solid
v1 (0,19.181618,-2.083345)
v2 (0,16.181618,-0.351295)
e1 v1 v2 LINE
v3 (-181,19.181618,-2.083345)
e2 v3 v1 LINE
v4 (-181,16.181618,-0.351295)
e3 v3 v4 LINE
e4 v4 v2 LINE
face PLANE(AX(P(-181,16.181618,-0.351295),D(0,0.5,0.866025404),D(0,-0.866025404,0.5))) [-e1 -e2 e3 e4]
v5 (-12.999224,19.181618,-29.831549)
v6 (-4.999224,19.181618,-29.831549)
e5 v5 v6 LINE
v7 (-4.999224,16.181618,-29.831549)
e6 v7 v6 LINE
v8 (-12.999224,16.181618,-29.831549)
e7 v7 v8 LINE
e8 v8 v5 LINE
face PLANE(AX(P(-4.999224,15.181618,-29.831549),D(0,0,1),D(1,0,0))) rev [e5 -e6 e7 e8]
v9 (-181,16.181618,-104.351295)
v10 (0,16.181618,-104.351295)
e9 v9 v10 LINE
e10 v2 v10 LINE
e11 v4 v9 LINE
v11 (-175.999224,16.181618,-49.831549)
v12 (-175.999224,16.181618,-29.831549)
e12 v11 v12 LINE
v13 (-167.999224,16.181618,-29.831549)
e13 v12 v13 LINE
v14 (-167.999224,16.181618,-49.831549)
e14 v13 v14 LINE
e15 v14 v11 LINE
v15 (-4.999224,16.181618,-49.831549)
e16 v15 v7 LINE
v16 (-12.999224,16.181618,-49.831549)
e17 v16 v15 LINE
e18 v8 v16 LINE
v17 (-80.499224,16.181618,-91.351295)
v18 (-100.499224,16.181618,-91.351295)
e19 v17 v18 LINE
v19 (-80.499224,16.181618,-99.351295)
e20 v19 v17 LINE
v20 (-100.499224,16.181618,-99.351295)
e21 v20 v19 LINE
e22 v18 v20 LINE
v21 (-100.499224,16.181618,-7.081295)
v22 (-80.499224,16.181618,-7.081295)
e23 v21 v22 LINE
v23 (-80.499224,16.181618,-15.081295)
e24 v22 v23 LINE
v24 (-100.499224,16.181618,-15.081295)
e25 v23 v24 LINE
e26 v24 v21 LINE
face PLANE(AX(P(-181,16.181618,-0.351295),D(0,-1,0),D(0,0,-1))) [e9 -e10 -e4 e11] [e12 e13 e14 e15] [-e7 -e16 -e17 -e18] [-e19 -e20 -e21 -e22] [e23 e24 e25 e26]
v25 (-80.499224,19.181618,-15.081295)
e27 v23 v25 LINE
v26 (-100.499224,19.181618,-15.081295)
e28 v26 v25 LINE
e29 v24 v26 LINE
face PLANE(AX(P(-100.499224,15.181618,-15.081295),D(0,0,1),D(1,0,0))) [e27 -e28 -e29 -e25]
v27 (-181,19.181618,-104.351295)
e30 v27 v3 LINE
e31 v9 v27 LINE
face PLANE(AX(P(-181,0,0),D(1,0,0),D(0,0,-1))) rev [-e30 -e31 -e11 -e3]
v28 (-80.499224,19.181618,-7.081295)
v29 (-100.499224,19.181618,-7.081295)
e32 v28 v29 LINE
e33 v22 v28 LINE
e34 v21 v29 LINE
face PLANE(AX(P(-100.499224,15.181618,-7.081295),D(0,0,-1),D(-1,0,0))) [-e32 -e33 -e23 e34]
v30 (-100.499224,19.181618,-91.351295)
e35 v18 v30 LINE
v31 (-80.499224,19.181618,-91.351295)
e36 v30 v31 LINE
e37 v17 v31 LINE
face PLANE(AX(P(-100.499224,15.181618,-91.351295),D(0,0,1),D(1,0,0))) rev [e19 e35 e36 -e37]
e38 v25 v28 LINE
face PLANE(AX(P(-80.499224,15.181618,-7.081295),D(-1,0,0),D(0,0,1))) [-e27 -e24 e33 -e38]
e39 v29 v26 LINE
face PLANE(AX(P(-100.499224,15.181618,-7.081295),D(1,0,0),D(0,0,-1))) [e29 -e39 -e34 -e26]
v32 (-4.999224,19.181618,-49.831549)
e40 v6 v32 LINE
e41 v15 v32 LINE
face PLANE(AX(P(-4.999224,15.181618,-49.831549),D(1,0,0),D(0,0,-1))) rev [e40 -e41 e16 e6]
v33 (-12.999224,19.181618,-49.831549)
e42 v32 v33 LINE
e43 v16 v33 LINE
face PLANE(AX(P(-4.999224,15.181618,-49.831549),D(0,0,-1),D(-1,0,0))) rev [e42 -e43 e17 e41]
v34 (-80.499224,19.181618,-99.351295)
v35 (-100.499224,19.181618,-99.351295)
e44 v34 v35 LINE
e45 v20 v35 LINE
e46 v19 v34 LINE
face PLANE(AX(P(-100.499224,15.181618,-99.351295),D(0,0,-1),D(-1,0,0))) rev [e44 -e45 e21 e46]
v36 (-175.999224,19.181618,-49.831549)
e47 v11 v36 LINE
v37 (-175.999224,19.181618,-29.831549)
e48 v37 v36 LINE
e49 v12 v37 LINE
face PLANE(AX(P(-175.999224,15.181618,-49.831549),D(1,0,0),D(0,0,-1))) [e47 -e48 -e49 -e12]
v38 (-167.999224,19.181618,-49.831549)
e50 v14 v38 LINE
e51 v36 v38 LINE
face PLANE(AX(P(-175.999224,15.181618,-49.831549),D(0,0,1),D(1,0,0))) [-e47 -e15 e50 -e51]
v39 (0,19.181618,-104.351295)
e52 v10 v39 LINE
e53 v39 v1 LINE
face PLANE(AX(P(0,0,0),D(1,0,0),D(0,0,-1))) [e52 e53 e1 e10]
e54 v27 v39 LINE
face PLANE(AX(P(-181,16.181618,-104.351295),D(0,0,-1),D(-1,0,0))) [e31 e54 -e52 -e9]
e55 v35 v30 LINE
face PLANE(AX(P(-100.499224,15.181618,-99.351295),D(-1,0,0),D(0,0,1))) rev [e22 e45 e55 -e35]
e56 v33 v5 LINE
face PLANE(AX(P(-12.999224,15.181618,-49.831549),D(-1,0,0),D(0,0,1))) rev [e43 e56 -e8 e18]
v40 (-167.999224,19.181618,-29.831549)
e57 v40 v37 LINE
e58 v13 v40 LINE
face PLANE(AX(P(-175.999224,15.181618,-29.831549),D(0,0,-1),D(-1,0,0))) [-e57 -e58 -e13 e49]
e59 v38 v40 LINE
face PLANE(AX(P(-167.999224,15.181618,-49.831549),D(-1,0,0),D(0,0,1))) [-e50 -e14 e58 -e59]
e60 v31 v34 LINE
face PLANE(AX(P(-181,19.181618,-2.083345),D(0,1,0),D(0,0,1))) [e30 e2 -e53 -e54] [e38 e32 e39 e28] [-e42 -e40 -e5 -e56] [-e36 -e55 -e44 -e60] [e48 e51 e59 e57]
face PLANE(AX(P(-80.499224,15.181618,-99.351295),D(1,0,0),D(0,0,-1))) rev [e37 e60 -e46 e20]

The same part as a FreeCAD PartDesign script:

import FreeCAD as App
import Part
import Sketcher

V = App.Vector
Q = App.Units.Quantity

doc = App.newDocument("Part")
body = doc.addObject("PartDesign::Body", "Body")

sketch1 = body.newObject("Sketcher::SketchObject", "Sketch")
sketch1.AttachmentSupport = (doc.getObject("YZ_Plane"), [""])
sketch1.MapMode = "FlatFace"
sketch1.addGeometry([
    Part.LineSegment(V(19.2, -2.1, 0), V(16.2, -0.4, 0)),
    Part.LineSegment(V(16.2, -0.4, 0), V(16.2, -104.4, 0)),
    Part.LineSegment(V(16.2, -104.4, 0), V(19.2, -104.4, 0)),
    Part.LineSegment(V(19.2, -104.4, 0), V(19.2, -2.1, 0)),
], False)
sketch1.addConstraint([
    Sketcher.Constraint("Coincident", 0, 2, 1, 1),
    Sketcher.Constraint("Coincident", 1, 2, 2, 1),
    Sketcher.Constraint("Coincident", 2, 2, 3, 1),
    Sketcher.Constraint("Coincident", 3, 2, 0, 1),
    Sketcher.Constraint("Vertical", 1),
    Sketcher.Constraint("Horizontal", 2),
    Sketcher.Constraint("Vertical", 3),
    Sketcher.Constraint("DistanceX", 2, 1, 2, 2, 3.0),
    Sketcher.Constraint("DistanceY", 1, 2, 1, 1, 104.0),
    Sketcher.Constraint("Angle", 0, Q("150 deg")),
    Sketcher.Constraint("DistanceX", -1, 1, 0, 2, 16.181618),
    Sketcher.Constraint("DistanceY", 0, 2, -1, 1, 0.351295),
])
pad1 = body.newObject("PartDesign::Pad", "Pad")
pad1.Profile = sketch1
pad1.Length = 181
pad1.Reversed = True

sketch2 = body.newObject("Sketcher::SketchObject", "Sketch001")
sketch2.AttachmentSupport = (doc.getObject("XZ_Plane"), [""])
sketch2.MapMode = "FlatFace"
sketch2.AttachmentOffset = App.Placement(V(0, 0, -19.181618), App.Rotation())
sketch2.addGeometry([
    Part.LineSegment(V(-100, -99, 0), V(-100, -91, 0)),
    Part.LineSegment(V(-100, -91, 0), V(-80, -91, 0)),
    Part.LineSegment(V(-80, -91, 0), V(-80, -99, 0)),
    Part.LineSegment(V(-80, -99, 0), V(-100, -99, 0)),
    Part.LineSegment(V(-13, -50, 0), V(-13, -30, 0)),
    Part.LineSegment(V(-13, -30, 0), V(-5, -30, 0)),
    Part.LineSegment(V(-5, -30, 0), V(-5, -50, 0)),
    Part.LineSegment(V(-5, -50, 0), V(-13, -50, 0)),
], False)
sketch2.addConstraint([
    Sketcher.Constraint("Coincident", 0, 2, 1, 1),
    Sketcher.Constraint("Coincident", 1, 2, 2, 1),
    Sketcher.Constraint("Coincident", 2, 2, 3, 1),
    Sketcher.Constraint("Coincident", 3, 2, 0, 1),
    Sketcher.Constraint("Coincident", 4, 2, 5, 1),
    Sketcher.Constraint("Coincident", 5, 2, 6, 1),
    Sketcher.Constraint("Coincident", 6, 2, 7, 1),
    Sketcher.Constraint("Coincident", 7, 2, 4, 1),
    Sketcher.Constraint("Vertical", 0),
    Sketcher.Constraint("Horizontal", 1),
    Sketcher.Constraint("Vertical", 2),
    Sketcher.Constraint("Horizontal", 3),
    Sketcher.Constraint("Vertical", 4),
    Sketcher.Constraint("Horizontal", 5),
    Sketcher.Constraint("Vertical", 6),
    Sketcher.Constraint("Horizontal", 7),
    Sketcher.Constraint("Equal", 7, 0),
    Sketcher.Constraint("Equal", 3, 4),
    Sketcher.Constraint("DistanceX", 1, 1, 1, 2, 20.0),
    Sketcher.Constraint("DistanceX", 5, 1, 5, 2, 8.0),
    Sketcher.Constraint("DistanceX", 1, 2, 4, 2, 67.5),
    Sketcher.Constraint("DistanceY", 4, 2, -1, 1, 29.831549),
    Sketcher.Constraint("DistanceX", 0, 2, -1, 1, 100.499224),
    Sketcher.Constraint("DistanceY", 0, 2, -1, 1, 91.351295),
])
pocket1 = body.newObject("PartDesign::Pocket", "Pocket")
pocket1.Profile = sketch2
pocket1.Length = 4
pocket1.Reversed = True
doc.recompute()

datumplane = body.newObject("PartDesign::Plane", "DatumPlane")
datumplane.AttachmentSupport = (doc.getObject("YZ_Plane"), [""])
datumplane.MapMode = "FlatFace"
datumplane.AttachmentOffset = App.Placement(V(0, 0, -90.499224), App.Rotation())
mirrored = body.newObject("PartDesign::Mirrored", "Mirrored")
mirrored.Originals = [pocket1]
mirrored.MirrorPlane = (datumplane, [""])
body.Tip = mirrored
doc.recompute()

datumplane2 = body.newObject("PartDesign::Plane", "DatumPlane001")
datumplane2.AttachmentSupport = (doc.getObject("XY_Plane"), [""])
datumplane2.MapMode = "FlatFace"
datumplane2.AttachmentOffset = App.Placement(V(0, 0, -53.216295), App.Rotation())
mirrored2 = body.newObject("PartDesign::Mirrored", "Mirrored001")
mirrored2.Originals = [pocket1]
mirrored2.MirrorPlane = (datumplane2, [""])
body.Tip = mirrored2

sketch3 = body.newObject("Sketcher::SketchObject", "Sketch002")
sketch3.AttachmentSupport = (doc.getObject("XZ_Plane"), [""])
sketch3.MapMode = "FlatFace"
sketch3.AttachmentOffset = App.Placement(V(0, 0, -19.181618), App.Rotation())
sketch3.addGeometry([
    Part.LineSegment(V(-17, -78, 0), V(-17, -56, 0)),
    Part.LineSegment(V(-17, -56, 0), V(-5, -56, 0)),
    Part.LineSegment(V(-5, -56, 0), V(-5, -78, 0)),
    Part.LineSegment(V(-5, -78, 0), V(-17, -78, 0)),
], False)
sketch3.addConstraint([
    Sketcher.Constraint("Coincident", 0, 2, 1, 1),
    Sketcher.Constraint("Coincident", 1, 2, 2, 1),
    Sketcher.Constraint("Coincident", 2, 2, 3, 1),
    Sketcher.Constraint("Coincident", 3, 2, 0, 1),
    Sketcher.Constraint("Vertical", 0),
    Sketcher.Constraint("Horizontal", 1),
    Sketcher.Constraint("Vertical", 2),
    Sketcher.Constraint("Horizontal", 3),
    Sketcher.Constraint("DistanceY", 0, 2, -1, 1, 55.606999),
    Sketcher.Constraint("DistanceX", 1, 1, 1, 2, 11.68427),
    Sketcher.Constraint("DistanceY", 0, 1, 0, 2, 21.95466),
    Sketcher.Constraint("DistanceX", 0, 2, -1, 1, 16.683494),
])
pad2 = body.newObject("PartDesign::Pad", "Pad001")
pad2.Profile = sketch3
pad2.Length = 3

doc.recompute()
